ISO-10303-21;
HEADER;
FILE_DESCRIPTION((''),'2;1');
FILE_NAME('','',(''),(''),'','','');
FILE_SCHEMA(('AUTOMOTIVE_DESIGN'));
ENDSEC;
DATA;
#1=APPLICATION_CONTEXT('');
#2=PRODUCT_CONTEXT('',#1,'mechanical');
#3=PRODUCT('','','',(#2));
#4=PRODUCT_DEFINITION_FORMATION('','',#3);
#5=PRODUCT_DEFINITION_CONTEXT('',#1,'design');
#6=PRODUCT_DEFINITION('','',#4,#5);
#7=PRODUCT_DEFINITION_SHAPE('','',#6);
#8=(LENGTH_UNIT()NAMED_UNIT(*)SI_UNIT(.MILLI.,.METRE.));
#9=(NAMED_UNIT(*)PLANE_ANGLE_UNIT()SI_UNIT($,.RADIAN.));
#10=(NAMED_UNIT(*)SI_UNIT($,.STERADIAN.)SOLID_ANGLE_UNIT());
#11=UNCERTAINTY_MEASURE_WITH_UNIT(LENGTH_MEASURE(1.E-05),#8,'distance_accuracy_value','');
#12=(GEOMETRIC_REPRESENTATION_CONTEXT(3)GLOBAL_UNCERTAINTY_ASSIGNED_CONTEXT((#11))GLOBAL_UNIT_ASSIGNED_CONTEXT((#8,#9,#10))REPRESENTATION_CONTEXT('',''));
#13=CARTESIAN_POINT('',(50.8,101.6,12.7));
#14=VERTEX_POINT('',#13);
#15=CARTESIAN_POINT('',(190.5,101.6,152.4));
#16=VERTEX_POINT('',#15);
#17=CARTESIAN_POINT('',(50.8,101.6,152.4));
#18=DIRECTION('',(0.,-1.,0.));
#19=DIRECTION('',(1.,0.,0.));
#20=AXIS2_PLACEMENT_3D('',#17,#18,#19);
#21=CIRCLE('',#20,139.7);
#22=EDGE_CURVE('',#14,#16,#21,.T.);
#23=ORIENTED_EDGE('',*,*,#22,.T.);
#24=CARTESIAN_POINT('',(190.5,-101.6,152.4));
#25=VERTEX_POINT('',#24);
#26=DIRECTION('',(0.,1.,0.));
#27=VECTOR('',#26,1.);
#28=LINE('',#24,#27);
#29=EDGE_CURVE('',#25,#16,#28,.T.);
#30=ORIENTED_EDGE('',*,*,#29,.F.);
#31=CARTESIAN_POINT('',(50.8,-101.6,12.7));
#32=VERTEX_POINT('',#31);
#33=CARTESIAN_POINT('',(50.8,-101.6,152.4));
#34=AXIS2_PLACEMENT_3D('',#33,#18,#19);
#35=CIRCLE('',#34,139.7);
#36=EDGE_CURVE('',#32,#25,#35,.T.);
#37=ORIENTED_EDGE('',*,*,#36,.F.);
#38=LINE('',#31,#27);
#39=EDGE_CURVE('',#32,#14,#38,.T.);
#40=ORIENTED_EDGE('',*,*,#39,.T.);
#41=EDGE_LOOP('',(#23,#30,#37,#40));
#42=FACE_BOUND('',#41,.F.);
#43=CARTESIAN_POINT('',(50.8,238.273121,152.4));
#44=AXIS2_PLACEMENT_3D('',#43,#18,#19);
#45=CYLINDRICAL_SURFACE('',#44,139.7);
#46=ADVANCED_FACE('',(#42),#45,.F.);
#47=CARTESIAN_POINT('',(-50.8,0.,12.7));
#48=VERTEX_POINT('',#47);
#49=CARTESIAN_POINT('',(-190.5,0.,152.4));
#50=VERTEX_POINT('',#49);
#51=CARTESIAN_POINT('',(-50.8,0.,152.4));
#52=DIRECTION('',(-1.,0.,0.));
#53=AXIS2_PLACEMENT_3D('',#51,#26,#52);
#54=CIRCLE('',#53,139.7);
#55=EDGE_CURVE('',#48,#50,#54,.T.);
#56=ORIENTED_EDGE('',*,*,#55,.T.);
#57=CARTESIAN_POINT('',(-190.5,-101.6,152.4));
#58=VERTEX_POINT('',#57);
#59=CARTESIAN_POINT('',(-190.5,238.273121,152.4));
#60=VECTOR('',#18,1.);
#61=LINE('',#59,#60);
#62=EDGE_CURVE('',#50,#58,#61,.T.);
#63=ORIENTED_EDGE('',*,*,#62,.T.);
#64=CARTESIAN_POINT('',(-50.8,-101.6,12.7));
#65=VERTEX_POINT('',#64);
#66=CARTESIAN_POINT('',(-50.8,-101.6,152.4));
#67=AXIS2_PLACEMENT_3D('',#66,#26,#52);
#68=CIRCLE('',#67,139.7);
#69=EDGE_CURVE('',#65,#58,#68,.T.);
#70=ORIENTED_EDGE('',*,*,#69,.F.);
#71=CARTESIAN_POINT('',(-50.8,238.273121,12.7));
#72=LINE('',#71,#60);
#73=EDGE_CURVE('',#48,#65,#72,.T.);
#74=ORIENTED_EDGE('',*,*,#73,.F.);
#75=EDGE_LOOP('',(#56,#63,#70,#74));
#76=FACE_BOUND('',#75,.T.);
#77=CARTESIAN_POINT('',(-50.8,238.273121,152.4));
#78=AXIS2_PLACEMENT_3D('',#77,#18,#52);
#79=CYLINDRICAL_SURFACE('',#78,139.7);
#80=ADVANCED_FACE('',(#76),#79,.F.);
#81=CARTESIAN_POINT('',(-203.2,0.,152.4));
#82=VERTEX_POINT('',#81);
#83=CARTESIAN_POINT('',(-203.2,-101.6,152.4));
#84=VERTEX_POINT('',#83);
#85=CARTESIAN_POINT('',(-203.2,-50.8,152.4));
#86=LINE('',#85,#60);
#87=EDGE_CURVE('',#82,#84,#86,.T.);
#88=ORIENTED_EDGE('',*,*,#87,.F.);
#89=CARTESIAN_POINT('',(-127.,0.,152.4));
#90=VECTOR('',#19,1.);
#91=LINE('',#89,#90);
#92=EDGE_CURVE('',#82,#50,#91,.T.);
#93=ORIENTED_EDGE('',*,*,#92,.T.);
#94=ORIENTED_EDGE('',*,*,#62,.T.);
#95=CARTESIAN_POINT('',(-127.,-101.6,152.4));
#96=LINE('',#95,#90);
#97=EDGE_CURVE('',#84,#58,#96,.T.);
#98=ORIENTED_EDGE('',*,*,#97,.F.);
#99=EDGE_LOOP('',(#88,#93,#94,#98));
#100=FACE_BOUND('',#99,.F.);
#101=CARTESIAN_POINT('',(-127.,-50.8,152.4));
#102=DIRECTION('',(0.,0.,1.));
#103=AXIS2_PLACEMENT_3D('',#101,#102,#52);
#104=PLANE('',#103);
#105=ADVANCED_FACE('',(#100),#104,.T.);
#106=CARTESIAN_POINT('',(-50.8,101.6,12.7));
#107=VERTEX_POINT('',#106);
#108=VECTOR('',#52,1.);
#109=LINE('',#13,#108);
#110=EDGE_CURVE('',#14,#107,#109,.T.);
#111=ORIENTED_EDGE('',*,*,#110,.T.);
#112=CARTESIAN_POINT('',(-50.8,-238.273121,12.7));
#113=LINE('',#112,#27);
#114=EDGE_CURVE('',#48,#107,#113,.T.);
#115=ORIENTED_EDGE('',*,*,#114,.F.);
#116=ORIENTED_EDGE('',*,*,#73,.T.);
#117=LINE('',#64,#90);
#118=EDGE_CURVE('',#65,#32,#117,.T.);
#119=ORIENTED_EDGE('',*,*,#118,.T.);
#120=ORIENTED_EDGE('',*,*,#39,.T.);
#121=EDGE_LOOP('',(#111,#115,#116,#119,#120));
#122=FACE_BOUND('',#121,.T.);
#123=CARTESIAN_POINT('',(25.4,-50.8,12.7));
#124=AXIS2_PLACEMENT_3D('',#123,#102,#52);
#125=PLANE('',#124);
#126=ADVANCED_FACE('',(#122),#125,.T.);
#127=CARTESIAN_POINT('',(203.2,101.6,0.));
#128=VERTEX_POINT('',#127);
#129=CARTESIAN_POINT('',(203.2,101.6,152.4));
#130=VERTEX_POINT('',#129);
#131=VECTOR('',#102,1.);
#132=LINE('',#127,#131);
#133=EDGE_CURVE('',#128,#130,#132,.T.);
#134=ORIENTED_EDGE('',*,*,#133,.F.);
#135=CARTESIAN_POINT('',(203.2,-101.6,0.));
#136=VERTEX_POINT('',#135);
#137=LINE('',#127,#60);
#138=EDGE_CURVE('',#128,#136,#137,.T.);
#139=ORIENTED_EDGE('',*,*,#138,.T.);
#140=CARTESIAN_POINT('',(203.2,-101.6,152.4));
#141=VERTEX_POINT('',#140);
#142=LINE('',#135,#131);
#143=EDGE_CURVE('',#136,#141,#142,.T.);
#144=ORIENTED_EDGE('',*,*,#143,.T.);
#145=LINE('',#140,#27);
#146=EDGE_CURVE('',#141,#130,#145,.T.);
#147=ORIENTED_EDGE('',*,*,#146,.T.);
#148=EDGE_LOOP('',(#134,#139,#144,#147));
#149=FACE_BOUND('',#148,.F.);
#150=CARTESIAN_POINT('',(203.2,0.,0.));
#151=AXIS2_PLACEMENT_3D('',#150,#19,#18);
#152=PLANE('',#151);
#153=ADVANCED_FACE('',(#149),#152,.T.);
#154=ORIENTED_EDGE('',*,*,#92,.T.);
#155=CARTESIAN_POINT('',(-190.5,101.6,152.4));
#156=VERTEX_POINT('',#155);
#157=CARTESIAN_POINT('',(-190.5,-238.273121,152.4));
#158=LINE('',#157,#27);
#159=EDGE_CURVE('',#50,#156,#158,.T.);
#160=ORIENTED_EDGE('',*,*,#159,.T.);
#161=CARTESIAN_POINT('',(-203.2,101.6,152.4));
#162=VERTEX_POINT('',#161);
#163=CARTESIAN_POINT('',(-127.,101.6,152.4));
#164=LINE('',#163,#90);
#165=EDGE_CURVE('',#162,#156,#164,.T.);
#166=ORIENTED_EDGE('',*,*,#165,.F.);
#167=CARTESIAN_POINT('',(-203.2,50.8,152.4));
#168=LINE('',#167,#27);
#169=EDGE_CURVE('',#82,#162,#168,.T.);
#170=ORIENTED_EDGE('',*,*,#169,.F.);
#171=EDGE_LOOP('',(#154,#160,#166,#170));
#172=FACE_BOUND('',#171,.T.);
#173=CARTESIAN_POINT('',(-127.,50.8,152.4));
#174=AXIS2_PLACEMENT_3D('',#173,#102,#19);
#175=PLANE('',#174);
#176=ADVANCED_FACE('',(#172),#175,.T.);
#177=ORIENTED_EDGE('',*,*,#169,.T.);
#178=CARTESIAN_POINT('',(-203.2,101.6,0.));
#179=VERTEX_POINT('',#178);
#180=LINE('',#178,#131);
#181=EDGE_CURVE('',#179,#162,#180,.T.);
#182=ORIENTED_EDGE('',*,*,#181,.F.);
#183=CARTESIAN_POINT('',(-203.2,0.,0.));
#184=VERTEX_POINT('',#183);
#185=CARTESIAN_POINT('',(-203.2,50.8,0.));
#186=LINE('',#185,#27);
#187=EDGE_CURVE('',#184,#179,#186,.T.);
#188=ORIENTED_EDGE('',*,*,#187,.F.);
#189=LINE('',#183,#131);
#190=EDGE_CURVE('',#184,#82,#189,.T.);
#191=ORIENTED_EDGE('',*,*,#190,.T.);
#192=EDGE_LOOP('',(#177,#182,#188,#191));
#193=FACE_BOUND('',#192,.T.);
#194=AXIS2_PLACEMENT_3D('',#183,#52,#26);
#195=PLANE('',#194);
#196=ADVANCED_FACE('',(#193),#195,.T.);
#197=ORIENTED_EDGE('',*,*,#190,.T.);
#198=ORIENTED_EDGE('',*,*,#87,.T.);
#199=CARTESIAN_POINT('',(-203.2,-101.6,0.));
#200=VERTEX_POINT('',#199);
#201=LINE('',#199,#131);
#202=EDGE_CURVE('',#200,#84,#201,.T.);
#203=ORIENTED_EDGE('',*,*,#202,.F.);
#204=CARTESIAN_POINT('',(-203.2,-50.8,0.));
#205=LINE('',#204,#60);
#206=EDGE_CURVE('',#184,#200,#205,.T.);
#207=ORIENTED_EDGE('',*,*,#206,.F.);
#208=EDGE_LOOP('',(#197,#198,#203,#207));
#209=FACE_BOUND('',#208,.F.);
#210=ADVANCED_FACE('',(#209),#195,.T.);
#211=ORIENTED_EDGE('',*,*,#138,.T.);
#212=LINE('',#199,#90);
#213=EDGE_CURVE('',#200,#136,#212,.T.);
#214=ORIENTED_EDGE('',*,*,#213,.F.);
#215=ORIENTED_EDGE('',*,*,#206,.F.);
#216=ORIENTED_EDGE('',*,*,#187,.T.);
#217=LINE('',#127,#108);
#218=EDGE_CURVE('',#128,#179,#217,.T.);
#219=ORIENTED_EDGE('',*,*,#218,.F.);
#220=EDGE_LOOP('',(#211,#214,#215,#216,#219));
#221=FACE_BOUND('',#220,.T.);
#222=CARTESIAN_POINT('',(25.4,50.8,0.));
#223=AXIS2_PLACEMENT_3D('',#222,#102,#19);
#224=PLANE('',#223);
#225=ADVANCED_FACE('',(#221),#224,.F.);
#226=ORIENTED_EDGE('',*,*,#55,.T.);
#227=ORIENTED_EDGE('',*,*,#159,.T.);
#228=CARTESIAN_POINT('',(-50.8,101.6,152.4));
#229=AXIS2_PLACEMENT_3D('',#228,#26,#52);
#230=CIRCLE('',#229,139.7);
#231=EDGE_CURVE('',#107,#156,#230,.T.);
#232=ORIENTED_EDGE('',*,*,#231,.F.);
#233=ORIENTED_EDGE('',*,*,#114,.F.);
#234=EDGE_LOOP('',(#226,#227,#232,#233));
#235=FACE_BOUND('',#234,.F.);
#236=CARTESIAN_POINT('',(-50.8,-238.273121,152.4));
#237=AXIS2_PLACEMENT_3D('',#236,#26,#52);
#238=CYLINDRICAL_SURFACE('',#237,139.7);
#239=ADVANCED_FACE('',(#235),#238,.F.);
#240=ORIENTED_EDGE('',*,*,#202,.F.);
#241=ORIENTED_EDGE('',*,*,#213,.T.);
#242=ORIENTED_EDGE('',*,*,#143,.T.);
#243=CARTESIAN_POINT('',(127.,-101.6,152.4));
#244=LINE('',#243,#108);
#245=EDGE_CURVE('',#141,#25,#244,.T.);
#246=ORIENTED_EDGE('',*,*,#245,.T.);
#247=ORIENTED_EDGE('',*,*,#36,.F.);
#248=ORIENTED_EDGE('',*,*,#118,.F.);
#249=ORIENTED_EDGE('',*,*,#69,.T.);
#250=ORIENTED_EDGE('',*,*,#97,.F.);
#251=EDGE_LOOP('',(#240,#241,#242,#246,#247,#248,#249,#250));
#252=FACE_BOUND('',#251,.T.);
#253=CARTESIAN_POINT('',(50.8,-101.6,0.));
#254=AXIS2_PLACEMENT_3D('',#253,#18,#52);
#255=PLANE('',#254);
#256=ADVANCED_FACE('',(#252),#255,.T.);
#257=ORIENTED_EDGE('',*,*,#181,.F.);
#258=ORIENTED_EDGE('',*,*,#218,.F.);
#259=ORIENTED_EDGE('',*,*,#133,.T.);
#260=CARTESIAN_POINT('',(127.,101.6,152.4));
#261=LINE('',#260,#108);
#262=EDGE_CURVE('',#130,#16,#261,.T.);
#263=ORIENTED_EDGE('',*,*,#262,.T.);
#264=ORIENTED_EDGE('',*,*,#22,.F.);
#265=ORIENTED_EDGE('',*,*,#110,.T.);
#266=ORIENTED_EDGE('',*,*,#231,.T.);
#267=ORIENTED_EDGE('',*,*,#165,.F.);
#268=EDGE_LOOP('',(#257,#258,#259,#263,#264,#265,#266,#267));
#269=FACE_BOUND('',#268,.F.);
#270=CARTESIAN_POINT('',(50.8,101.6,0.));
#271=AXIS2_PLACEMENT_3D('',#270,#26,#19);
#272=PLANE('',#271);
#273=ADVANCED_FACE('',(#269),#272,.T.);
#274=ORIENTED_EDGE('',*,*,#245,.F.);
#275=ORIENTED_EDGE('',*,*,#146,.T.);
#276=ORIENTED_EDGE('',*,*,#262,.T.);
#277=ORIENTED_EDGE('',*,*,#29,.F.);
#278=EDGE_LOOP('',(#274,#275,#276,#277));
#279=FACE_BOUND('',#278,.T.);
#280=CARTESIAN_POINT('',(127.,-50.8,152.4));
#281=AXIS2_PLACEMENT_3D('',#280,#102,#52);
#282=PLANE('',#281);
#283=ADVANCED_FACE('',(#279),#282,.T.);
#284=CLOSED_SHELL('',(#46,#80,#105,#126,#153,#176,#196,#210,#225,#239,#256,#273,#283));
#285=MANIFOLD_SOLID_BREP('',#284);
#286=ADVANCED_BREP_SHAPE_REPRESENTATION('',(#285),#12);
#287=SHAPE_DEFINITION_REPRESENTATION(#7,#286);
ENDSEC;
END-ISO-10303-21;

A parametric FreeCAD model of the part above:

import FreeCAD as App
import Part
import Sketcher
Q = App.Units.Quantity


def add_polygon(sketch, points):
    """Adds a closed chain of lines whose ends are joined by coincident constraints."""
    first, n = sketch.GeometryCount, len(points)
    for a, b in zip(points, points[1:] + points[:1]):
        sketch.addGeometry(Part.LineSegment(App.Vector(*a, 0), App.Vector(*b, 0)), False)
    for i in range(n):
        sketch.addConstraint(Sketcher.Constraint("Coincident", first + i, 2, first + (i + 1) % n, 1))

doc = App.newDocument("Part")
body = doc.addObject("PartDesign::Body", "Body")

sketch1 = doc.addObject("Sketcher::SketchObject", "Sketch")
body.addObject(sketch1)
sketch1.AttachmentSupport = (doc.XY_Plane, [""])
sketch1.MapMode = "FlatFace"
add_polygon(sketch1, [(-203.2, 101.6), (-203.2, 0), (-50.8, 0), (-50.8, 101.6)])
sketch1.addConstraint([
    Sketcher.Constraint("Vertical", 0),
    Sketcher.Constraint("Horizontal", 1),
    Sketcher.Constraint("Vertical", 2),
    Sketcher.Constraint("Horizontal", 3),
    Sketcher.Constraint("PointOnObject", 0, 2, -1),
    Sketcher.Constraint("DistanceX", 1, 1, 1, 2, Q("6 in")),
    Sketcher.Constraint("DistanceY", 0, 2, 0, 1, Q("4 in")),
    Sketcher.Constraint("DistanceX", 0, 2, -1, 1, Q("8 in")),
])
pad1 = doc.addObject("PartDesign::Pad", "Pad")
body.addObject(pad1)
pad1.Profile = sketch1
pad1.Length = Q("6 in")

sketch2 = doc.addObject("Sketcher::SketchObject", "Sketch001")
body.addObject(sketch2)
sketch2.AttachmentSupport = (doc.XZ_Plane, [""])
sketch2.MapMode = "FlatFace"
sketch2.addGeometry(Part.Circle(App.Vector(-50.8, 152.4, 0), App.Vector(0, 0, 1), 139.7), False)
sketch2.addConstraint([
    Sketcher.Constraint("Diameter", 0, Q("11 in")),
    Sketcher.Constraint("DistanceX", 0, 3, -1, 1, Q("2 in")),
    Sketcher.Constraint("DistanceY", -1, 1, 0, 3, Q("6 in")),
])
doc.recompute()
hole = doc.addObject("PartDesign::Hole", "Hole")
body.addObject(hole)
hole.Profile = sketch2
hole.ThreadType = "None"
hole.Diameter = Q("11 in")
hole.DepthType = "ThroughAll"

sketch3 = doc.addObject("Sketcher::SketchObject", "Sketch002")
body.addObject(sketch3)
sketch3.AttachmentSupport = (doc.XY_Plane, [""])
sketch3.MapMode = "FlatFace"
add_polygon(sketch3, [(-50.8, 101.6), (-50.8, 0), (0, 0), (0, 101.6)])
sketch3.addConstraint([
    Sketcher.Constraint("Vertical", 0),
    Sketcher.Constraint("Horizontal", 1),
    Sketcher.Constraint("Vertical", 2),
    Sketcher.Constraint("Horizontal", 3),
    Sketcher.Constraint("Coincident", 1, 2, -1, 1),
    Sketcher.Constraint("DistanceX", 1, 1, 1, 2, Q("2 in")),
    Sketcher.Constraint("DistanceY", 0, 2, 0, 1, Q("4 in")),
])
pad2 = doc.addObject("PartDesign::Pad", "Pad001")
body.addObject(pad2)
pad2.Profile = sketch3
pad2.Length = Q("0.5 in")
body2 = doc.addObject("PartDesign::Body", "Body001")
doc.recompute()

body2.BaseFeature = body
doc.recompute()

mirroring = doc.addObject("Part::Mirroring", "Mirroring")
mirroring.Source = body
mirroring.Base = App.Vector(0, 0, 0)
mirroring.Normal = App.Vector(0, -1, 0)
body3 = doc.addObject("PartDesign::Body", "Body002")
body3.BaseFeature = mirroring
boolean = doc.addObject("PartDesign::Boolean", "Boolean")
body2.addObject(boolean)
boolean.Type = "Fuse"
boolean.addObjects([body3])
doc.recompute()
body4 = doc.addObject("PartDesign::Body", "Body003")
doc.recompute()

body4.BaseFeature = body2
doc.recompute()

mirroring2 = doc.addObject("Part::Mirroring", "Mirroring001")
mirroring2.Source = body2
mirroring2.Base = App.Vector(0, 0, 0)
mirroring2.Normal = App.Vector(1, 0, 0)
body5 = doc.addObject("PartDesign::Body", "Body004")
body5.BaseFeature = mirroring2
boolean2 = doc.addObject("PartDesign::Boolean", "Boolean001")
body4.addObject(boolean2)
boolean2.Type = "Fuse"
boolean2.addObjects([body5])
doc.recompute()
mirroring.Visibility = False
mirroring2.Visibility = False

doc.recompute()
